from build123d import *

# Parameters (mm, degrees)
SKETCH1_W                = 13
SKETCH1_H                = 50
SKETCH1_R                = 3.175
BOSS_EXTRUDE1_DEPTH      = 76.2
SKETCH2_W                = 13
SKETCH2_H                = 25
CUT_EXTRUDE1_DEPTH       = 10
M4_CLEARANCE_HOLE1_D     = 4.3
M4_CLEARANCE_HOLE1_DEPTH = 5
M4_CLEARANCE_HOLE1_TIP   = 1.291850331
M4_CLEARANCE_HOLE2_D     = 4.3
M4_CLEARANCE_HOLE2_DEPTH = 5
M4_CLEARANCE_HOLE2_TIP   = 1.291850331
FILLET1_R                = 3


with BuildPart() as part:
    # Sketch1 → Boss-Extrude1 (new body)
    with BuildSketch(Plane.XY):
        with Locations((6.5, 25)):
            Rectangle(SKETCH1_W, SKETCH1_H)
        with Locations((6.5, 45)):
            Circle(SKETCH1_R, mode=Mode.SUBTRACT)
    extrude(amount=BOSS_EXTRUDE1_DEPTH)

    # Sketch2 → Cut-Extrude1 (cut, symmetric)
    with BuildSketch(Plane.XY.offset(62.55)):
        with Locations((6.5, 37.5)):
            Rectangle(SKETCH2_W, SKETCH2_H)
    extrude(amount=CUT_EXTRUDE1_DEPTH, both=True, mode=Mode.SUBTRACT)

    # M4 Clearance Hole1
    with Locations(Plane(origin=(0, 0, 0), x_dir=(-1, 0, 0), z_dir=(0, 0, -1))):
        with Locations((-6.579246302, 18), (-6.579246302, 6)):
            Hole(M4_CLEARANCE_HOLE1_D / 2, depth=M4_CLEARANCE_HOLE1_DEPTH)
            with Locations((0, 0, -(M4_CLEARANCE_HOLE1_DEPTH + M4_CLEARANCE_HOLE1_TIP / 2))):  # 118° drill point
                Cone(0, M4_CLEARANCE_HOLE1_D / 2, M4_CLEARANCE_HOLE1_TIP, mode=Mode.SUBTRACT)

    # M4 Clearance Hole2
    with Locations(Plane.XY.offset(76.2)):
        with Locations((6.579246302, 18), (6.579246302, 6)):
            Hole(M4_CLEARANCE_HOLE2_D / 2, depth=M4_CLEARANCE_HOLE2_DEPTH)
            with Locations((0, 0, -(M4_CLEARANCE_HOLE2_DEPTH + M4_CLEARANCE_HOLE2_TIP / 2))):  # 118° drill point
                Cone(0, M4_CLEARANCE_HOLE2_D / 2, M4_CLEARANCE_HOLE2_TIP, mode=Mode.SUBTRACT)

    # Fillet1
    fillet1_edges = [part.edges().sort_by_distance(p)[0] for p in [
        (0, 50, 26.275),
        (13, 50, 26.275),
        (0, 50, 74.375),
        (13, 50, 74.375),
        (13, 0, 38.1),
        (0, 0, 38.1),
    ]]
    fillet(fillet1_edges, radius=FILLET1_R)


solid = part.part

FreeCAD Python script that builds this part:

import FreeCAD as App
import Part
import Sketcher
Q = App.Units.Quantity


def edges_at(feature, points):
    """Names of the edges that pass closest to the given points."""
    edges = feature.Shape.Edges
    near = lambda p: min(range(len(edges)), key=lambda i: edges[i].distToShape(Part.Vertex(*p))[0])
    return sorted({f"Edge{near(p) + 1}" for p in points})


def add_polygon(sketch, points):
    """Adds a closed chain of lines whose ends are joined by coincident constraints."""
    first, n = sketch.GeometryCount, len(points)
    for a, b in zip(points, points[1:] + points[:1]):
        sketch.addGeometry(Part.LineSegment(App.Vector(*a, 0), App.Vector(*b, 0)), False)
    for i in range(n):
        sketch.addConstraint(Sketcher.Constraint("Coincident", first + i, 2, first + (i + 1) % n, 1))

doc = App.newDocument("Part")
body = doc.addObject("PartDesign::Body", "Body")

sketch1 = doc.addObject("Sketcher::SketchObject", "Sketch")
body.addObject(sketch1)
sketch1.AttachmentSupport = (doc.XY_Plane, [""])
sketch1.MapMode = "FlatFace"
add_polygon(sketch1, [(0, 50), (0, 0), (13, 0), (13, 50)])
sketch1.addGeometry(Part.Circle(App.Vector(6.5, 45, 0), App.Vector(0, 0, 1), 3.2), False)
sketch1.addConstraint([
    Sketcher.Constraint("Vertical", 0),
    Sketcher.Constraint("Horizontal", 1),
    Sketcher.Constraint("Vertical", 2),
    Sketcher.Constraint("Horizontal", 3),
    Sketcher.Constraint("Coincident", 0, 2, -1, 1),
    Sketcher.Constraint("Diameter", 4, Q("6.35 mm")),
    Sketcher.Constraint("DistanceX", 1, 1, 1, 2, Q("13 mm")),
    Sketcher.Constraint("DistanceY", 0, 2, 0, 1, Q("50 mm")),
    Sketcher.Constraint("DistanceY", -1, 1, 4, 3, Q("45 mm")),
    Sketcher.Constraint("DistanceX", -1, 1, 4, 3, Q("6.5 mm")),
])
pad1 = doc.addObject("PartDesign::Pad", "Pad")
body.addObject(pad1)
pad1.Profile = sketch1
pad1.Length = 76.2

sketch2 = doc.addObject("Sketcher::SketchObject", "Sketch001")
body.addObject(sketch2)
sketch2.AttachmentSupport = (doc.XY_Plane, [""])
sketch2.MapMode = "FlatFace"
sketch2.AttachmentOffset = App.Placement(App.Vector(0, 0, 62.55), App.Rotation())
add_polygon(sketch2, [(0, 50), (0, 25), (13, 25), (13, 50)])
sketch2.addConstraint([
    Sketcher.Constraint("Vertical", 0),
    Sketcher.Constraint("Horizontal", 1),
    Sketcher.Constraint("Vertical", 2),
    Sketcher.Constraint("Horizontal", 3),
    Sketcher.Constraint("PointOnObject", 0, 2, -2),
    Sketcher.Constraint("DistanceX", 1, 1, 1, 2, Q("13 mm")),
    Sketcher.Constraint("DistanceY", 0, 2, 0, 1, Q("25 mm")),
    Sketcher.Constraint("DistanceY", -1, 1, 0, 2, Q("25 mm")),
])
pocket1 = doc.addObject("PartDesign::Pocket", "Pocket")
body.addObject(pocket1)
pocket1.Profile = sketch2
pocket1.Length = 20
pocket1.Midplane = True

sketch3 = doc.addObject("Sketcher::SketchObject", "Sketch002")
body.addObject(sketch3)
sketch3.AttachmentSupport = (doc.XY_Plane, [""])
sketch3.MapMode = "FlatFace"
sketch3.addGeometry([
    Part.Circle(App.Vector(6.6, 18, 0), App.Vector(0, 0, 1), 2.1),
    Part.Circle(App.Vector(6.6, 6, 0), App.Vector(0, 0, 1), 2.1),
], False)
sketch3.addConstraint([
    Sketcher.Constraint("Equal", 0, 1),
    Sketcher.Constraint("Vertical", 0, 3, 1, 3),
    Sketcher.Constraint("Diameter", 0, Q("4.3 mm")),
    Sketcher.Constraint("DistanceY", -1, 1, 0, 3, Q("18 mm")),
    Sketcher.Constraint("DistanceY", -1, 1, 1, 3, Q("6 mm")),
    Sketcher.Constraint("DistanceX", -1, 1, 0, 3, Q("6.579246 mm")),
])
doc.recompute()
hole = doc.addObject("PartDesign::Hole", "Hole")
body.addObject(hole)
hole.Profile = sketch3
hole.ThreadType = "None"
hole.Diameter = 4.3
hole.DepthType = "Dimension"
hole.Depth = 5
hole.DrillPoint = "Angled"
hole.DrillPointAngle = 118
hole.Reversed = True

sketch4 = doc.addObject("Sketcher::SketchObject", "Sketch003")
body.addObject(sketch4)
sketch4.AttachmentSupport = (doc.XY_Plane, [""])
sketch4.MapMode = "FlatFace"
sketch4.AttachmentOffset = App.Placement(App.Vector(0, 0, 76.2), App.Rotation())
sketch4.addGeometry([
    Part.Circle(App.Vector(6.6, 18, 0), App.Vector(0, 0, 1), 2.1),
    Part.Circle(App.Vector(6.6, 6, 0), App.Vector(0, 0, 1), 2.1),
], False)
sketch4.addConstraint([
    Sketcher.Constraint("Equal", 0, 1),
    Sketcher.Constraint("Vertical", 0, 3, 1, 3),
    Sketcher.Constraint("Diameter", 0, Q("4.3 mm")),
    Sketcher.Constraint("DistanceY", -1, 1, 0, 3, Q("18 mm")),
    Sketcher.Constraint("DistanceY", -1, 1, 1, 3, Q("6 mm")),
    Sketcher.Constraint("DistanceX", -1, 1, 0, 3, Q("6.579246 mm")),
])
doc.recompute()
hole2 = doc.addObject("PartDesign::Hole", "Hole001")
body.addObject(hole2)
hole2.Profile = sketch4
hole2.ThreadType = "None"
hole2.Diameter = 4.3
hole2.DepthType = "Dimension"
hole2.Depth = 5
hole2.DrillPoint = "Angled"
hole2.DrillPointAngle = 118
doc.recompute()

fillet = doc.addObject("PartDesign::Fillet", "Fillet")
body.addObject(fillet)
fillet.Base = (hole2, edges_at(hole2, [
    (0, 50, 26.275),
    (13, 50, 26.275),
    (0, 50, 74.375),
    (13, 50, 74.375),
    (13, 0, 38.1),
    (0, 0, 38.1),
]))
fillet.Radius = 3

doc.recompute()
